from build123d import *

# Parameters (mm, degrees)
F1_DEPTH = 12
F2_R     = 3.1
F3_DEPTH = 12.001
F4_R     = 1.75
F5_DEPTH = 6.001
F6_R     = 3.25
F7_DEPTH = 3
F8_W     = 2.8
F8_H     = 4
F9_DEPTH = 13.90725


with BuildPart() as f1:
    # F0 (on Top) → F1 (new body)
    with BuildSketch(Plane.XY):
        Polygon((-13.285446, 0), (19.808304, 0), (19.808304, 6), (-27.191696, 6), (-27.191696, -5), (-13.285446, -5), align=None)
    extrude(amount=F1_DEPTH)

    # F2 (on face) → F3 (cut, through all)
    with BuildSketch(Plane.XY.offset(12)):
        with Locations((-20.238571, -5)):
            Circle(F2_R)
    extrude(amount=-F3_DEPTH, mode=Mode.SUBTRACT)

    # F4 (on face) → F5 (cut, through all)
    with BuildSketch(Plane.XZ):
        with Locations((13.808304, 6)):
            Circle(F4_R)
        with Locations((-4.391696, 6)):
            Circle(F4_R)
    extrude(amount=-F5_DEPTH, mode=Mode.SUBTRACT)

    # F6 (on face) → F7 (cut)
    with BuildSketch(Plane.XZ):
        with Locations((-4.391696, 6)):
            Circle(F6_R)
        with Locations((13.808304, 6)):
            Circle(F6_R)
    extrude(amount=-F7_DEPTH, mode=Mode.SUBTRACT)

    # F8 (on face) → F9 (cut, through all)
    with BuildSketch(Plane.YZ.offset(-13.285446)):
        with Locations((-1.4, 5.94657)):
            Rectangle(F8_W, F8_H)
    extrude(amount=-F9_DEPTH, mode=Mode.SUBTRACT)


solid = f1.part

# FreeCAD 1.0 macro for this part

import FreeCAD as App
import Part
import Sketcher
from FreeCAD import Vector


def add_polygon(sketch, points):
    """Adds a closed chain of lines whose ends are joined by coincident constraints."""
    first, n = sketch.GeometryCount, len(points)
    for a, b in zip(points, points[1:] + points[:1]):
        sketch.addGeometry(Part.LineSegment(App.Vector(*a, 0), App.Vector(*b, 0)), False)
    for i in range(n):
        sketch.addConstraint(Sketcher.Constraint("Coincident", first + i, 2, first + (i + 1) % n, 1))

doc = App.newDocument("Part")
body = doc.addObject("PartDesign::Body", "Body")

# Sketch on XY plane
sketch1 = body.newObject("Sketcher::SketchObject", "Sketch")
sketch1.AttachmentSupport = (doc.getObject("XY_Plane"), [""])
sketch1.MapMode = "FlatFace"
add_polygon(sketch1, [(-13, 0), (20, 0), (20, 6), (-27, 6), (-27, -5), (-13, -5)])  # lines 0-5
sketch1.addConstraint([
    Sketcher.Constraint("Horizontal", 0),
    Sketcher.Constraint("Vertical", 1),
    Sketcher.Constraint("Horizontal", 2),
    Sketcher.Constraint("Vertical", 3),
    Sketcher.Constraint("Horizontal", 4),
    Sketcher.Constraint("Vertical", 5),
    Sketcher.Constraint("PointOnObject", 0, 2, -1),
    Sketcher.Constraint("DistanceX", 2, 2, 2, 1, 47.0),
    Sketcher.Constraint("DistanceY", 1, 1, 1, 2, 6.0),
    Sketcher.Constraint("DistanceY", 3, 2, 3, 1, 11.0),
    Sketcher.Constraint("DistanceX", 0, 1, 0, 2, 33.09375),
    Sketcher.Constraint("DistanceX", -1, 1, 0, 2, 19.808304),
])
pad1 = body.newObject("PartDesign::Pad", "Pad")
pad1.Profile = sketch1
pad1.Length = 12

# Sketch on XY plane
sketch2 = body.newObject("Sketcher::SketchObject", "Sketch001")
sketch2.AttachmentSupport = (doc.getObject("XY_Plane"), [""])
sketch2.MapMode = "FlatFace"
sketch2.AttachmentOffset = App.Placement(Vector(0, 0, 12), App.Rotation())
sketch2.addGeometry(Part.Circle(Vector(-20.2, -5, 0), Vector(0, 0, 1), 3.1), False)
sketch2.addConstraint([
    Sketcher.Constraint("Diameter", 0, 6.2),
    Sketcher.Constraint("DistanceY", 0, 3, -1, 1, 5.0),
    Sketcher.Constraint("DistanceX", 0, 3, -1, 1, 20.238571),
])
pocket1 = body.newObject("PartDesign::Pocket", "Pocket")
pocket1.Profile = sketch2
pocket1.Type = "ThroughAll"

# Sketch on XZ plane
sketch3 = body.newObject("Sketcher::SketchObject", "Sketch002")
sketch3.AttachmentSupport = (doc.getObject("XZ_Plane"), [""])
sketch3.MapMode = "FlatFace"
sketch3.addGeometry([
    Part.Circle(Vector(13.8, 6, 0), Vector(0, 0, 1), 1.8),
    Part.Circle(Vector(-4.4, 6, 0), Vector(0, 0, 1), 1.8),
], False)
sketch3.addConstraint([
    Sketcher.Constraint("Equal", 0, 1),
    Sketcher.Constraint("Horizontal", 0, 3, 1, 3),
    Sketcher.Constraint("Diameter", 0, 3.5),
    Sketcher.Constraint("DistanceY", -1, 1, 0, 3, 6.0),
    Sketcher.Constraint("DistanceX", 1, 3, 0, 3, 18.2),
    Sketcher.Constraint("DistanceX", -1, 1, 0, 3, 13.808304),
])
pocket2 = body.newObject("PartDesign::Pocket", "Pocket001")
pocket2.Profile = sketch3
pocket2.Type = "ThroughAll"

# Sketch on XZ plane
sketch4 = body.newObject("Sketcher::SketchObject", "Sketch003")
sketch4.AttachmentSupport = (doc.getObject("XZ_Plane"), [""])
sketch4.MapMode = "FlatFace"
sketch4.addGeometry([
    Part.Circle(Vector(-4.4, 6, 0), Vector(0, 0, 1), 3.2),
    Part.Circle(Vector(13.8, 6, 0), Vector(0, 0, 1), 3.2),
], False)
sketch4.addConstraint([
    Sketcher.Constraint("Equal", 0, 1),
    Sketcher.Constraint("Horizontal", 0, 3, 1, 3),
    Sketcher.Constraint("Diameter", 0, 6.5),
    Sketcher.Constraint("DistanceY", -1, 1, 0, 3, 6.0),
    Sketcher.Constraint("DistanceX", 0, 3, 1, 3, 18.2),
    Sketcher.Constraint("DistanceX", 0, 3, -1, 1, 4.391696),
])
pocket3 = body.newObject("PartDesign::Pocket", "Pocket002")
pocket3.Profile = sketch4
pocket3.Length = 3

# Sketch on YZ plane
sketch5 = body.newObject("Sketcher::SketchObject", "Sketch004")
sketch5.AttachmentSupport = (doc.getObject("YZ_Plane"), [""])
sketch5.MapMode = "FlatFace"
sketch5.AttachmentOffset = App.Placement(Vector(0, 0, -13.285446), App.Rotation())
add_polygon(sketch5, [(-2.8, 7.9), (-2.8, 3.9), (0, 3.9), (0, 7.9)])  # lines 0-3
sketch5.addConstraint([
    Sketcher.Constraint("Vertical", 0),
    Sketcher.Constraint("Horizontal", 1),
    Sketcher.Constraint("Vertical", 2),
    Sketcher.Constraint("Horizontal", 3),
    Sketcher.Constraint("PointOnObject", 1, 2, -2),
    Sketcher.Constraint("DistanceY", 0, 2, 0, 1, 4.0),
    Sketcher.Constraint("DistanceX", 1, 1, 1, 2, 2.8),
    Sketcher.Constraint("DistanceY", -1, 1, 0, 2, 3.94657),
])
pocket4 = body.newObject("PartDesign::Pocket", "Pocket003")
pocket4.Profile = sketch5
pocket4.Type = "ThroughAll"

doc.recompute()
